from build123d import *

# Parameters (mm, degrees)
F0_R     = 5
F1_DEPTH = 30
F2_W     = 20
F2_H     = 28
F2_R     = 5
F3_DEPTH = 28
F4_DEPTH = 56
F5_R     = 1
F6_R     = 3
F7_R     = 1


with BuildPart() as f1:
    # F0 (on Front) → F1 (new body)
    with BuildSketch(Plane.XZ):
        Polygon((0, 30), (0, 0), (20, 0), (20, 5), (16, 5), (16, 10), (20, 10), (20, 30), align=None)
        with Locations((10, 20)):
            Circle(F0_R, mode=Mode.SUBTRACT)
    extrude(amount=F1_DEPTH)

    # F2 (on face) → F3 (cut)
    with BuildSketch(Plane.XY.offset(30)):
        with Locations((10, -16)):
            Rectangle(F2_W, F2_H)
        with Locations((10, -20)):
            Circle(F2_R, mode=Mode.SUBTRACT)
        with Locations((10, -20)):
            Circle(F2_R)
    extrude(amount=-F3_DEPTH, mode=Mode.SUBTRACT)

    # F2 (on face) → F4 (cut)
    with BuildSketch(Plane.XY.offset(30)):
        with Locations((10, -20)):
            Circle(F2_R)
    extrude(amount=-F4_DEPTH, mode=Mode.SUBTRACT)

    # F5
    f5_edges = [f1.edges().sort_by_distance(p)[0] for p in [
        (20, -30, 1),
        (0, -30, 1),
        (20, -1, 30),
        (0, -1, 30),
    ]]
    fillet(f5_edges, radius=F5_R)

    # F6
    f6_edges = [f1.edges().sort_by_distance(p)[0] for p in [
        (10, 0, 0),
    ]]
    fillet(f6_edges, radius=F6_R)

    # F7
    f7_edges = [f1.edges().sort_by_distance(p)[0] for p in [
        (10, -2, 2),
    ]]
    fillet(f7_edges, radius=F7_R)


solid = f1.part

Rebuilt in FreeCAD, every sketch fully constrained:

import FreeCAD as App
import Part
import Sketcher

V = App.Vector


def edges_at(feature, points):
    """Names of the edges that pass closest to the given points."""
    edges = feature.Shape.Edges
    near = lambda p: min(range(len(edges)), key=lambda i: edges[i].distToShape(Part.Vertex(*p))[0])
    return sorted({f"Edge{near(p) + 1}" for p in points})


def add_polygon(sketch, points):
    """Adds a closed chain of lines whose ends are joined by coincident constraints."""
    first, n = sketch.GeometryCount, len(points)
    for a, b in zip(points, points[1:] + points[:1]):
        sketch.addGeometry(Part.LineSegment(App.Vector(*a, 0), App.Vector(*b, 0)), False)
    for i in range(n):
        sketch.addConstraint(Sketcher.Constraint("Coincident", first + i, 2, first + (i + 1) % n, 1))

doc = App.newDocument("Part")
body = doc.addObject("PartDesign::Body", "Body")

# Sketch on XZ plane
sketch1 = body.newObject("Sketcher::SketchObject", "Sketch")
sketch1.AttachmentSupport = (doc.getObject("XZ_Plane"), [""])
sketch1.MapMode = "FlatFace"
add_polygon(sketch1, [(0, 30), (0, 0), (20, 0), (20, 5), (16, 5), (16, 10), (20, 10), (20, 30)])  # lines 0-7
sketch1.addGeometry(Part.Circle(V(10, 20, 0), V(0, 0, 1), 5), False)  # 8
sketch1.addConstraint([
    Sketcher.Constraint("Vertical", 0),
    Sketcher.Constraint("Horizontal", 1),
    Sketcher.Constraint("Vertical", 2),
    Sketcher.Constraint("Horizontal", 3),
    Sketcher.Constraint("Vertical", 4),
    Sketcher.Constraint("Horizontal", 5),
    Sketcher.Constraint("Vertical", 6),
    Sketcher.Constraint("Horizontal", 7),
    Sketcher.Constraint("Coincident", 0, 2, -1, 1),
    Sketcher.Constraint("Vertical", 2, 2, 5, 2),
    Sketcher.Constraint("Equal", 2, 4),
    Sketcher.Constraint("Equal", 7, 6),
    Sketcher.Constraint("Diameter", 8, 10.0),
    Sketcher.Constraint("DistanceX", 1, 1, 1, 2, 20.0),
    Sketcher.Constraint("DistanceX", 3, 2, 3, 1, 4.0),
    Sketcher.Constraint("DistanceY", 0, 2, 0, 1, 30.0),
    Sketcher.Constraint("DistanceX", -1, 1, 8, 3, 10.0),
    Sketcher.Constraint("DistanceY", -1, 1, 8, 3, 20.0),
])
pad1 = body.newObject("PartDesign::Pad", "Pad")
pad1.Profile = sketch1
pad1.Length = 30

# Sketch on XY plane
sketch2 = body.newObject("Sketcher::SketchObject", "Sketch001")
sketch2.AttachmentSupport = (doc.getObject("XY_Plane"), [""])
sketch2.MapMode = "FlatFace"
sketch2.AttachmentOffset = App.Placement(V(0, 0, 30), App.Rotation())
add_polygon(sketch2, [(0, -2), (0, -30), (20, -30), (20, -2)])  # lines 0-3
sketch2.addConstraint([
    Sketcher.Constraint("Vertical", 0),
    Sketcher.Constraint("Horizontal", 1),
    Sketcher.Constraint("Vertical", 2),
    Sketcher.Constraint("Horizontal", 3),
    Sketcher.Constraint("PointOnObject", 0, 2, -2),
    Sketcher.Constraint("DistanceX", 1, 1, 1, 2, 20.0),
    Sketcher.Constraint("DistanceY", 0, 2, 0, 1, 28.0),
    Sketcher.Constraint("DistanceY", 0, 2, -1, 1, 30.0),
])
pocket1 = body.newObject("PartDesign::Pocket", "Pocket")
pocket1.Profile = sketch2
pocket1.Length = 28

# Sketch on XY plane
sketch3 = body.newObject("Sketcher::SketchObject", "Sketch002")
sketch3.AttachmentSupport = (doc.getObject("XY_Plane"), [""])
sketch3.MapMode = "FlatFace"
sketch3.AttachmentOffset = App.Placement(V(0, 0, 30), App.Rotation())
sketch3.addGeometry(Part.Circle(V(10, -20, 0), V(0, 0, 1), 5), False)
sketch3.addConstraint([
    Sketcher.Constraint("Diameter", 0, 10.0),
    Sketcher.Constraint("DistanceX", -1, 1, 0, 3, 10.0),
    Sketcher.Constraint("DistanceY", 0, 3, -1, 1, 20.0),
])
pocket2 = body.newObject("PartDesign::Pocket", "Pocket001")
pocket2.Profile = sketch3
pocket2.Length = 56
doc.recompute()

fillet = body.newObject("PartDesign::Fillet", "Fillet")
fillet.Base = (pocket2, edges_at(pocket2, [
    (20, -30, 1),
    (0, -30, 1),
    (20, -1, 30),
    (0, -1, 30),
]))
fillet.Radius = 1
doc.recompute()

fillet2 = body.newObject("PartDesign::Fillet", "Fillet001")
fillet2.Base = (fillet, edges_at(fillet, [(10, 0, 0)]))
fillet2.Radius = 3
doc.recompute()

fillet3 = body.newObject("PartDesign::Fillet", "Fillet002")
fillet3.Base = (fillet2, edges_at(fillet2, [(10, -2, 2)]))
fillet3.Radius = 1

doc.recompute()
